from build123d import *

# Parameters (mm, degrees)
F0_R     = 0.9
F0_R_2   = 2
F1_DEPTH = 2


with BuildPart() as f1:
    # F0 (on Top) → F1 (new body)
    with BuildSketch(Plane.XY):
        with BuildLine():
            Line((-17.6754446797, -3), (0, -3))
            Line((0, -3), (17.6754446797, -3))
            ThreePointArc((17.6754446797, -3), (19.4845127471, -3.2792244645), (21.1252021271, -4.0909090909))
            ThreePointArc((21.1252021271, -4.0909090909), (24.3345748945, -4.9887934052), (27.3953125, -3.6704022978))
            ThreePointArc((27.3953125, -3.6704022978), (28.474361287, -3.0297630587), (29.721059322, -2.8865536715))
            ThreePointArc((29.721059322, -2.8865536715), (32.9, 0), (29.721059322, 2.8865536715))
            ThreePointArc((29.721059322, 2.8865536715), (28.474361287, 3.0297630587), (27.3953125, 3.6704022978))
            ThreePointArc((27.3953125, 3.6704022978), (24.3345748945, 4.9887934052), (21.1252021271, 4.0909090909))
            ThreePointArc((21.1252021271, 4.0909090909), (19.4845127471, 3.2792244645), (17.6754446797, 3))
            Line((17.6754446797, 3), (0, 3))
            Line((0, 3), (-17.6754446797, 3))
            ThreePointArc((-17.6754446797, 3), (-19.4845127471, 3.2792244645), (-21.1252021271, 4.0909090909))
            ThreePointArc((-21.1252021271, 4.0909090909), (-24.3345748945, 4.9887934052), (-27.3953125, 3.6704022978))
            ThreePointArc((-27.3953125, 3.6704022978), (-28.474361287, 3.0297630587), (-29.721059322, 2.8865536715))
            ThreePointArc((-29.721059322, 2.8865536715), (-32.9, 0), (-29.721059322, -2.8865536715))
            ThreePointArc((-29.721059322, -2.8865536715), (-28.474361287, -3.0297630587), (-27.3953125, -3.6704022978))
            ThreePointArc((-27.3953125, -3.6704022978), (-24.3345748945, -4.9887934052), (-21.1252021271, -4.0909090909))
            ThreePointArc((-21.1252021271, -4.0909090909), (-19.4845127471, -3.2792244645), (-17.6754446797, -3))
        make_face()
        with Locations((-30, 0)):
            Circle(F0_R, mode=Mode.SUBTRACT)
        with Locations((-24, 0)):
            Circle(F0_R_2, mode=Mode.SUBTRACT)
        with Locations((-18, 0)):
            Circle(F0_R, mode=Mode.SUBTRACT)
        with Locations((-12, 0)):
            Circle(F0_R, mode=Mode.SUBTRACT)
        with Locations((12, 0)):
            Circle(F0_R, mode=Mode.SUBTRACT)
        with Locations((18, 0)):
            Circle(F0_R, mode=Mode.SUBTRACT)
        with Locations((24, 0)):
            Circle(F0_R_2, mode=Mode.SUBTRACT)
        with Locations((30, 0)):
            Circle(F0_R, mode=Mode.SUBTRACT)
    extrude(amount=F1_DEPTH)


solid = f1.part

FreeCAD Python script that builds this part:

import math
import FreeCAD as App
import Part
import Sketcher
from FreeCAD import Vector

doc = App.newDocument("Part")
body = doc.addObject("PartDesign::Body", "Body")

# Sketch on XY plane
sketch1 = body.newObject("Sketcher::SketchObject", "Sketch")
sketch1.AttachmentSupport = (doc.getObject("XY_Plane"), [""])
sketch1.MapMode = "FlatFace"
sketch1.addGeometry([
    Part.LineSegment(Vector(-17.7, -3, 0), Vector(17.7, -3, 0)),  # 0
    Part.ArcOfCircle(Part.Circle(Vector(17.7, -9, 0), Vector(0, 0, 1), 6), math.radians(55), math.radians(90)),  # 1
    Part.ArcOfCircle(Part.Circle(Vector(24, 0, 0), Vector(0, 0, 1), 5), math.radians(-125), math.radians(-47)),  # 2
    Part.ArcOfCircle(Part.Circle(Vector(29.4, -5.9, 0), Vector(0, 0, 1), 3), math.radians(84), math.radians(133)),  # 3
    Part.ArcOfCircle(Part.Circle(Vector(30, 0, 0), Vector(0, 0, 1), 2.9), math.radians(-96), math.radians(96)),  # 4
    Part.ArcOfCircle(Part.Circle(Vector(29.4, 5.9, 0), Vector(0, 0, 1), 3), math.radians(-133), math.radians(-84)),  # 5
    Part.ArcOfCircle(Part.Circle(Vector(24, 0, 0), Vector(0, 0, 1), 5), math.radians(47), math.radians(125)),  # 6
    Part.ArcOfCircle(Part.Circle(Vector(17.7, 9, 0), Vector(0, 0, 1), 6), math.radians(-90), math.radians(-55)),  # 7
    Part.LineSegment(Vector(17.7, 3, 0), Vector(-17.7, 3, 0)),  # 8
    Part.ArcOfCircle(Part.Circle(Vector(-17.7, 9, 0), Vector(0, 0, 1), 6), math.radians(-125), math.radians(-90)),  # 9
    Part.ArcOfCircle(Part.Circle(Vector(-24, 0, 0), Vector(0, 0, 1), 5), math.radians(55), math.radians(133)),  # 10
    Part.ArcOfCircle(Part.Circle(Vector(-29.4, 5.9, 0), Vector(0, 0, 1), 3), math.radians(-96), math.radians(-47)),  # 11
    Part.ArcOfCircle(Part.Circle(Vector(-30, 0, 0), Vector(0, 0, 1), 2.9), math.radians(84), math.radians(276)),  # 12
    Part.ArcOfCircle(Part.Circle(Vector(-29.4, -5.9, 0), Vector(0, 0, 1), 3), math.radians(47), math.radians(96)),  # 13
    Part.ArcOfCircle(Part.Circle(Vector(-24, 0, 0), Vector(0, 0, 1), 5), math.radians(-133), math.radians(-55)),  # 14
    Part.ArcOfCircle(Part.Circle(Vector(-17.7, -9, 0), Vector(0, 0, 1), 6), math.radians(90), math.radians(125)),  # 15
    Part.Circle(Vector(-30, 0, 0), Vector(0, 0, 1), 0.9),  # 16
    Part.Circle(Vector(-18, 0, 0), Vector(0, 0, 1), 0.9),  # 17
    Part.Circle(Vector(-12, 0, 0), Vector(0, 0, 1), 0.9),  # 18
    Part.Circle(Vector(12, 0, 0), Vector(0, 0, 1), 0.9),  # 19
    Part.Circle(Vector(18, 0, 0), Vector(0, 0, 1), 0.9),  # 20
    Part.Circle(Vector(30, 0, 0), Vector(0, 0, 1), 0.9),  # 21
    Part.Circle(Vector(-24, 0, 0), Vector(0, 0, 1), 2),  # 22
    Part.Circle(Vector(24, 0, 0), Vector(0, 0, 1), 2),  # 23
], False)
sketch1.addConstraint([
    Sketcher.Constraint("Tangent", 0, 2, 1, 2),
    Sketcher.Constraint("Tangent", 1, 1, 2, 1),
    Sketcher.Constraint("Tangent", 2, 2, 3, 2),
    Sketcher.Constraint("Tangent", 3, 1, 4, 1),
    Sketcher.Constraint("Tangent", 4, 2, 5, 2),
    Sketcher.Constraint("Tangent", 5, 1, 6, 1),
    Sketcher.Constraint("Tangent", 6, 2, 7, 2),
    Sketcher.Constraint("Tangent", 7, 1, 8, 1),
    Sketcher.Constraint("Tangent", 8, 2, 9, 2),
    Sketcher.Constraint("Tangent", 9, 1, 10, 1),
    Sketcher.Constraint("Tangent", 10, 2, 11, 2),
    Sketcher.Constraint("Tangent", 11, 1, 12, 1),
    Sketcher.Constraint("Tangent", 12, 2, 13, 2),
    Sketcher.Constraint("Tangent", 13, 1, 14, 1),
    Sketcher.Constraint("Tangent", 14, 2, 15, 2),
    Sketcher.Constraint("Tangent", 15, 1, 0, 1),
    Sketcher.Constraint("Horizontal", 0),
    Sketcher.Constraint("Horizontal", 8),
    Sketcher.Constraint("Coincident", 6, 3, 2, 3),
    Sketcher.Constraint("Coincident", 14, 3, 10, 3),
    Sketcher.Constraint("Coincident", 16, 3, 12, 3),
    Sketcher.Constraint("Coincident", 21, 3, 4, 3),
    Sketcher.Constraint("Coincident", 22, 3, 10, 3),
    Sketcher.Constraint("Coincident", 23, 3, 2, 3),
    Sketcher.Constraint("Equal", 3, 5),
    Sketcher.Constraint("Equal", 2, 6),
    Sketcher.Constraint("Equal", 1, 7),
    Sketcher.Constraint("Equal", 7, 9),
    Sketcher.Constraint("Equal", 6, 10),
    Sketcher.Constraint("Equal", 5, 11),
    Sketcher.Constraint("Equal", 4, 12),
    Sketcher.Constraint("Equal", 11, 13),
    Sketcher.Constraint("Equal", 10, 14),
    Sketcher.Constraint("Equal", 9, 15),
    Sketcher.Constraint("Equal", 16, 17),
    Sketcher.Constraint("Equal", 17, 18),
    Sketcher.Constraint("Equal", 18, 19),
    Sketcher.Constraint("Equal", 19, 20),
    Sketcher.Constraint("Equal", 20, 21),
    Sketcher.Constraint("Equal", 22, 23),
    Sketcher.Constraint("Symmetric", 1, 3, 9, 3, -1, 1),
    Sketcher.Constraint("Symmetric", 3, 3, 11, 3, -1, 1),
    Sketcher.Constraint("Symmetric", 18, 3, 19, 3, -1, 1),
    Sketcher.Constraint("Symmetric", 17, 3, 20, 3, -1, 1),
    Sketcher.Constraint("Symmetric", 5, 3, 11, 3, -2),
    Sketcher.Constraint("PointOnObject", 12, 3, -1),
    Sketcher.Constraint("PointOnObject", 17, 3, -1),
    Sketcher.Constraint("PointOnObject", 18, 3, -1),
    Sketcher.Constraint("Diameter", 22, 4.0),
    Sketcher.Constraint("Radius", 1, 6.0),
    Sketcher.Constraint("Radius", 2, 5.0),
    Sketcher.Constraint("Radius", 3, 3.0),
    Sketcher.Constraint("Diameter", 16, 1.8),
    Sketcher.Constraint("Radius", 4, 2.9),
    Sketcher.Constraint("DistanceY", 1, 3, -1, 1, 9.0),
    Sketcher.Constraint("DistanceX", -1, 1, 2, 3, 24.0),
    Sketcher.Constraint("DistanceX", -1, 1, 4, 3, 30.0),
    Sketcher.Constraint("DistanceX", 17, 3, -1, 1, 18.0),
    Sketcher.Constraint("DistanceX", 18, 3, -1, 1, 12.0),
])
pad1 = body.newObject("PartDesign::Pad", "Pad")
pad1.Profile = sketch1
pad1.Length = 2

doc.recompute()
